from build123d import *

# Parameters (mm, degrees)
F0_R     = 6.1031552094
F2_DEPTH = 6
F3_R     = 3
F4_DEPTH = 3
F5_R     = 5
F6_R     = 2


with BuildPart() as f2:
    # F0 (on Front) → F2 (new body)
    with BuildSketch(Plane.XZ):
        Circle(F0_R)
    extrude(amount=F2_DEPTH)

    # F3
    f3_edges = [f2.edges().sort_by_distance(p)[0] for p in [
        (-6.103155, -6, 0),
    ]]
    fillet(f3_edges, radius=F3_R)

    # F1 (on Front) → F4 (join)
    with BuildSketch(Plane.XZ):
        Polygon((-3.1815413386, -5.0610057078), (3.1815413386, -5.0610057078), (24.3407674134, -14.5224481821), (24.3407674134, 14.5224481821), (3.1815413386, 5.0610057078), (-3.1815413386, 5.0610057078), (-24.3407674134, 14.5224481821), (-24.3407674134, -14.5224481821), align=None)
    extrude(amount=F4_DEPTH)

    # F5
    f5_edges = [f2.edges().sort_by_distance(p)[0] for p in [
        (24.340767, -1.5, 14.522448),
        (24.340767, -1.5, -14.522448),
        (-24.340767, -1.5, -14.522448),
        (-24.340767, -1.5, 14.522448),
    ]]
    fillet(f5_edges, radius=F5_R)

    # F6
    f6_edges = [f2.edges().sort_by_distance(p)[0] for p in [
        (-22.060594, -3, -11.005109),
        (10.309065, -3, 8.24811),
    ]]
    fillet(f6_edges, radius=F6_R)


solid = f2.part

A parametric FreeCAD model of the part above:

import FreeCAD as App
import Part
import Sketcher
from FreeCAD import Vector
Q = App.Units.Quantity


def edges_at(feature, points):
    """Names of the edges that pass closest to the given points."""
    edges = feature.Shape.Edges
    near = lambda p: min(range(len(edges)), key=lambda i: edges[i].distToShape(Part.Vertex(*p))[0])
    return sorted({f"Edge{near(p) + 1}" for p in points})

doc = App.newDocument("Part")
body = doc.addObject("PartDesign::Body", "Body")

# Sketch on XZ plane
sketch1 = body.newObject("Sketcher::SketchObject", "Sketch")
sketch1.AttachmentSupport = (doc.getObject("XZ_Plane"), [""])
sketch1.MapMode = "FlatFace"
sketch1.addGeometry(Part.Circle(Vector(0, 0, 0), Vector(0, 0, 1), 6.103155), False)
sketch1.addConstraint([
    Sketcher.Constraint("Coincident", 0, 3, -1, 1),
    Sketcher.Constraint("Diameter", 0, Q("12.20631 mm")),
])
pad1 = body.newObject("PartDesign::Pad", "Pad")
pad1.Profile = sketch1
pad1.Length = 6
doc.recompute()

fillet = body.newObject("PartDesign::Fillet", "Fillet")
fillet.Base = (pad1, edges_at(pad1, [(-6.103, -6, 0)]))
fillet.Radius = 3

# Sketch on XZ plane
sketch2 = body.newObject("Sketcher::SketchObject", "Sketch001")
sketch2.AttachmentSupport = (doc.getObject("XZ_Plane"), [""])
sketch2.MapMode = "FlatFace"
sketch2.addGeometry([
    Part.LineSegment(Vector(-3.181541, -5.061006, 0), Vector(3.181541, -5.061006, 0)),  # 0
    Part.LineSegment(Vector(3.181541, -5.061006, 0), Vector(24.340767, -14.522448, 0)),  # 1
    Part.LineSegment(Vector(24.340767, -14.522448, 0), Vector(24.340767, 14.522448, 0)),  # 2
    Part.LineSegment(Vector(24.340767, 14.522448, 0), Vector(3.181541, 5.061006, 0)),  # 3
    Part.LineSegment(Vector(3.181541, 5.061006, 0), Vector(-3.181541, 5.061006, 0)),  # 4
    Part.LineSegment(Vector(-3.181541, 5.061006, 0), Vector(-24.340767, 14.522448, 0)),  # 5
    Part.LineSegment(Vector(-24.340767, 14.522448, 0), Vector(-24.340767, -14.522448, 0)),  # 6
    Part.LineSegment(Vector(-24.340767, -14.522448, 0), Vector(-3.181541, -5.061006, 0)),  # 7
], False)
sketch2.addConstraint([
    Sketcher.Constraint("Coincident", 0, 2, 1, 1),
    Sketcher.Constraint("Coincident", 1, 2, 2, 1),
    Sketcher.Constraint("Coincident", 2, 2, 3, 1),
    Sketcher.Constraint("Coincident", 3, 2, 4, 1),
    Sketcher.Constraint("Coincident", 4, 2, 5, 1),
    Sketcher.Constraint("Coincident", 5, 2, 6, 1),
    Sketcher.Constraint("Coincident", 6, 2, 7, 1),
    Sketcher.Constraint("Coincident", 7, 2, 0, 1),
    Sketcher.Constraint("Horizontal", 0),
    Sketcher.Constraint("Vertical", 2),
    Sketcher.Constraint("Horizontal", 4),
    Sketcher.Constraint("Vertical", 6),
    Sketcher.Constraint("Symmetric", 0, 2, 4, 2, -1, 1),
    Sketcher.Constraint("Symmetric", 1, 2, 5, 2, -1, 1),
    Sketcher.Constraint("Parallel", 3, 7),
    Sketcher.Constraint("Horizontal", 2, 2, 5, 2),
    Sketcher.Constraint("Horizontal", 1, 2, 6, 2),
    Sketcher.Constraint("Vertical", 0, 2, 3, 2),
    Sketcher.Constraint("Distance", 1, Q("23.17826 mm")),
    Sketcher.Constraint("DistanceX", 0, 1, 0, 2, Q("6.363083 mm")),
    Sketcher.Constraint("DistanceY", 2, 1, 2, 2, Q("29.044896 mm")),
    Sketcher.Constraint("DistanceY", 0, 2, 3, 2, Q("10.122011 mm")),
])
pad2 = body.newObject("PartDesign::Pad", "Pad001")
pad2.Profile = sketch2
pad2.Length = 3
doc.recompute()

fillet2 = body.newObject("PartDesign::Fillet", "Fillet001")
fillet2.Base = (pad2, edges_at(pad2, [
    (24.341, -1.5, 14.522),
    (24.341, -1.5, -14.522),
    (-24.341, -1.5, -14.522),
    (-24.341, -1.5, 14.522),
]))
fillet2.Radius = 5
doc.recompute()

fillet3 = body.newObject("PartDesign::Fillet", "Fillet002")
fillet3.Base = (fillet2, edges_at(fillet2, [(-22.061, -3, -11.005), (10.309, -3, 8.248)]))
fillet3.Radius = 2

doc.recompute()
